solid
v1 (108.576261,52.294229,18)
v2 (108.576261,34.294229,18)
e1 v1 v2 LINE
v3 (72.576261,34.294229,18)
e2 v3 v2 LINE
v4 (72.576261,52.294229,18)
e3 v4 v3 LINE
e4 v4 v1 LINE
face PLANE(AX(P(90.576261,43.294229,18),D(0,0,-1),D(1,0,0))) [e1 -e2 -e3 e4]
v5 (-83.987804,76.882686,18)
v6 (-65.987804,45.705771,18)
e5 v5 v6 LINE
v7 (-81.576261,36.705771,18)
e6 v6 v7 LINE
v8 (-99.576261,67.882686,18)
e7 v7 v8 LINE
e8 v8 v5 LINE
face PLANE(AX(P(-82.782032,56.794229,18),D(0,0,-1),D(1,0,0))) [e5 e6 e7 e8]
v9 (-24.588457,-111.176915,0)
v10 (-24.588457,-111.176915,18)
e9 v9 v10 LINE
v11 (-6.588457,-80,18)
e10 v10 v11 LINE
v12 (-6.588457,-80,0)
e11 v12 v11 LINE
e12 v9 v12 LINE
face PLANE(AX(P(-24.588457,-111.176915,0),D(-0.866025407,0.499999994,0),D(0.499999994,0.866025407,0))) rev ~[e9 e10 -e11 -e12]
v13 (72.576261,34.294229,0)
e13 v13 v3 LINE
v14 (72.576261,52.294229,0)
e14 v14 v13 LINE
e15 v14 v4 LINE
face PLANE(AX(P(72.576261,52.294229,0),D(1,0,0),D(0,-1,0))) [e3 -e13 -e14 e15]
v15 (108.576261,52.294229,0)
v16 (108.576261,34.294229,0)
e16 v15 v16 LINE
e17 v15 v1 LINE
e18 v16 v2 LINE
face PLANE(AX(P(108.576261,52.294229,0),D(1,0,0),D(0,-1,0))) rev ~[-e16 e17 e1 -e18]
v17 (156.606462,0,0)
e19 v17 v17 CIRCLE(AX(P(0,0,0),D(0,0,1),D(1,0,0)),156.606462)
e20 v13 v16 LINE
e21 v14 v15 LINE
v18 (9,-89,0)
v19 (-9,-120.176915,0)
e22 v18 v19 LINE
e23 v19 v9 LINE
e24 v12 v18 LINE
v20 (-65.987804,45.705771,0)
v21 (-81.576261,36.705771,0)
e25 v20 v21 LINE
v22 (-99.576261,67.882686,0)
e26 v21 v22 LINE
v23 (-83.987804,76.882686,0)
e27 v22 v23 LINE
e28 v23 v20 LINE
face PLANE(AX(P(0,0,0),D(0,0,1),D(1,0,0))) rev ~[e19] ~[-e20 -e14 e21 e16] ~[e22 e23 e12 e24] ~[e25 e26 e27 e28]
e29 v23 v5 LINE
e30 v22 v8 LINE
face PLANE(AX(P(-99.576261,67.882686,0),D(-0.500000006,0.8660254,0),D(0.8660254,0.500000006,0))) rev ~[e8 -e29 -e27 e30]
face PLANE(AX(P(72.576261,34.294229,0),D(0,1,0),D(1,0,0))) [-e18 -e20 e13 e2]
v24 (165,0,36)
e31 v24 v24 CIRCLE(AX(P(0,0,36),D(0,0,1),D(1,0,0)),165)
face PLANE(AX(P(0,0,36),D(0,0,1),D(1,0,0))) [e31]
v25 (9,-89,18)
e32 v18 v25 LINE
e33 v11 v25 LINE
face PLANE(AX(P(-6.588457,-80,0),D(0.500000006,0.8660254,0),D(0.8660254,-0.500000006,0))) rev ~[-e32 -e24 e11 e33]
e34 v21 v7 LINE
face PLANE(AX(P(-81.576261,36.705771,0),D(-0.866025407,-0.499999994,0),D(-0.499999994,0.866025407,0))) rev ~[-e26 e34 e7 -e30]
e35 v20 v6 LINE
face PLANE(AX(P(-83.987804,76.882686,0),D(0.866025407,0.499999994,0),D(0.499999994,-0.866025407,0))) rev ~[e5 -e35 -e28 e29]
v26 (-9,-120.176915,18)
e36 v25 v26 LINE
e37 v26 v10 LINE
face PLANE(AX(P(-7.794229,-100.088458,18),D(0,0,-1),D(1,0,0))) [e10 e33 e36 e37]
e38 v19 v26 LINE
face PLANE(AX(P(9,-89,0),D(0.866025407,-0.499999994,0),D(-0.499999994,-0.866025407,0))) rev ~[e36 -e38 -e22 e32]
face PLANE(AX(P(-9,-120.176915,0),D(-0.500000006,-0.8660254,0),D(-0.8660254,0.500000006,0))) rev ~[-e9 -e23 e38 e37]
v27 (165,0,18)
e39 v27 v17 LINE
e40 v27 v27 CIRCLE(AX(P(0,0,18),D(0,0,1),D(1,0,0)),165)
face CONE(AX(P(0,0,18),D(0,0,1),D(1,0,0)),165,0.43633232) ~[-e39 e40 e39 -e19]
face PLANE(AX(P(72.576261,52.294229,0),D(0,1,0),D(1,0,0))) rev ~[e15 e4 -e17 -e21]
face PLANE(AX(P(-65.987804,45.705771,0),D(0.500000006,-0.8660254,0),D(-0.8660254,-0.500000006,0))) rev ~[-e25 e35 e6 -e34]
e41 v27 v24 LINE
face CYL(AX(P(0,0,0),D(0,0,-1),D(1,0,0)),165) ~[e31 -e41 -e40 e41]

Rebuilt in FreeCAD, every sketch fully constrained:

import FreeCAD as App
import Part
import Sketcher
Q = App.Units.Quantity


def edges_at(feature, points):
    """Names of the edges that pass closest to the given points."""
    edges = feature.Shape.Edges
    near = lambda p: min(range(len(edges)), key=lambda i: edges[i].distToShape(Part.Vertex(*p))[0])
    return sorted({f"Edge{near(p) + 1}" for p in points})


def add_polygon(sketch, points):
    """Adds a closed chain of lines whose ends are joined by coincident constraints."""
    first, n = sketch.GeometryCount, len(points)
    for a, b in zip(points, points[1:] + points[:1]):
        sketch.addGeometry(Part.LineSegment(App.Vector(*a, 0), App.Vector(*b, 0)), False)
    for i in range(n):
        sketch.addConstraint(Sketcher.Constraint("Coincident", first + i, 2, first + (i + 1) % n, 1))

doc = App.newDocument("Part")
body = doc.addObject("PartDesign::Body", "Body")

sketch1 = body.newObject("Sketcher::SketchObject", "Sketch")
sketch1.AttachmentSupport = (doc.getObject("XY_Plane"), [""])
sketch1.MapMode = "FlatFace"
sketch1.addGeometry(Part.Circle(App.Vector(0, 0, 0), App.Vector(0, 0, 1), 165), False)
sketch1.addConstraint([
    Sketcher.Constraint("Coincident", 0, 3, -1, 1),
    Sketcher.Constraint("Diameter", 0, 330.0),
])
pad1 = body.newObject("PartDesign::Pad", "Pad")
pad1.Profile = sketch1
pad1.Length = 36

sketch2 = body.newObject("Sketcher::SketchObject", "Sketch001")
sketch2.AttachmentSupport = (doc.getObject("XY_Plane"), [""])
sketch2.MapMode = "FlatFace"
add_polygon(sketch2, [(-9, -120.176915), (-24.588457, -111.176915), (-6.588457, -80), (9, -89)])
add_polygon(sketch2, [(72.576261, 34.294229), (72.576261, 52.294229), (108.576261, 52.294229), (108.576261, 34.294229)])
add_polygon(sketch2, [(-81.576261, 36.705771), (-99.576261, 67.882686), (-83.987804, 76.882686), (-65.987804, 45.705771)])
sketch2.addConstraint([
    Sketcher.Constraint("Vertical", 4),
    Sketcher.Constraint("Horizontal", 5),
    Sketcher.Constraint("Vertical", 6),
    Sketcher.Constraint("Horizontal", 7),
    Sketcher.Constraint("Perpendicular", 0, 1),
    Sketcher.Constraint("Perpendicular", 1, 2),
    Sketcher.Constraint("Perpendicular", 2, 3),
    Sketcher.Constraint("Perpendicular", 8, 9),
    Sketcher.Constraint("Perpendicular", 9, 10),
    Sketcher.Constraint("Perpendicular", 10, 11),
    Sketcher.Constraint("Equal", 3, 8),
    Sketcher.Constraint("Equal", 2, 9),
    Sketcher.Constraint("DistanceX", 5, 1, 5, 2, 36.0),
    Sketcher.Constraint("DistanceY", 4, 1, 4, 2, 18.0),
    Sketcher.Constraint("Angle", 0, Q("150 deg")),
    Sketcher.Constraint("Angle", 8, Q("120 deg")),
    Sketcher.Constraint("Distance", 0, 18.0),
    Sketcher.Constraint("Distance", 1, 36.0),
    Sketcher.Constraint("DistanceY", 1, 2, -1, 1, 80.0),
    Sketcher.Constraint("DistanceX", -1, 1, 2, 2, 9.0),
    Sketcher.Constraint("DistanceY", 0, 2, 8, 2, 179.059601),
    Sketcher.Constraint("DistanceX", -1, 1, 4, 2, 72.576261),
    Sketcher.Constraint("DistanceY", -1, 1, 4, 2, 52.294229),
    Sketcher.Constraint("DistanceX", 8, 2, -1, 1, 99.576261),
])
pocket1 = body.newObject("PartDesign::Pocket", "Pocket")
pocket1.Profile = sketch2
pocket1.Length = 18
pocket1.Reversed = True
doc.recompute()

chamfer = body.newObject("PartDesign::Chamfer", "Chamfer")
chamfer.Base = (pocket1, edges_at(pocket1, [(-165, 0, 0)]))
chamfer.ChamferType = "Two distances"
chamfer.Size = 18
chamfer.Size2 = 8.393538

doc.recompute()
